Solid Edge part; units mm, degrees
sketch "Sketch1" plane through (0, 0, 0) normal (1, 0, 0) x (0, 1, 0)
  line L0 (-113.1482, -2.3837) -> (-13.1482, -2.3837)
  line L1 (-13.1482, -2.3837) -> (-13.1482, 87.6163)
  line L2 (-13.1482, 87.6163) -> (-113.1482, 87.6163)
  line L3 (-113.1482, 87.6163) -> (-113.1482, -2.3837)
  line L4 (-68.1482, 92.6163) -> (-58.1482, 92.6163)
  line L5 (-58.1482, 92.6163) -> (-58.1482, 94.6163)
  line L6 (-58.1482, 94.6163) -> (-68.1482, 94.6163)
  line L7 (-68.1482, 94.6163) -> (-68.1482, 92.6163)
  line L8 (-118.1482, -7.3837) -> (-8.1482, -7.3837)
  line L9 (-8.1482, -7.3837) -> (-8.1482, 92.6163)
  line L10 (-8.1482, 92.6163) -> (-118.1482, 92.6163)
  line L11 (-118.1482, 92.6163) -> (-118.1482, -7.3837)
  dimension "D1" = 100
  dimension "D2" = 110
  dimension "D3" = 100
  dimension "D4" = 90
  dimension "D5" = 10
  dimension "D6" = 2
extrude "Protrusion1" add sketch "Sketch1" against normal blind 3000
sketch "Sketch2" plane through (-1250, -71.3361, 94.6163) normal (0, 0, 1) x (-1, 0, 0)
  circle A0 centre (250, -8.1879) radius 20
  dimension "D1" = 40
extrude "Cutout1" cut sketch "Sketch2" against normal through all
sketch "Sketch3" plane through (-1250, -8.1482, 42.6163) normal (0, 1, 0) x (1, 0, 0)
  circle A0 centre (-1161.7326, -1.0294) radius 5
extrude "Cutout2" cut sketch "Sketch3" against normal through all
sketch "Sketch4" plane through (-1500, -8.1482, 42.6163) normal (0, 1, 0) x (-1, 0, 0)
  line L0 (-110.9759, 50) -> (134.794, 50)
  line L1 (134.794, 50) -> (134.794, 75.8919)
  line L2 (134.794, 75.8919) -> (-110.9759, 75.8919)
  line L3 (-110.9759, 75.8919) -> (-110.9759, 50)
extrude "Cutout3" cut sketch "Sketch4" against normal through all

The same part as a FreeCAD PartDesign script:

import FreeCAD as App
import Part
import Sketcher
Q = App.Units.Quantity


def add_polygon(sketch, points):
    """Adds a closed chain of lines whose ends are joined by coincident constraints."""
    first, n = sketch.GeometryCount, len(points)
    for a, b in zip(points, points[1:] + points[:1]):
        sketch.addGeometry(Part.LineSegment(App.Vector(*a, 0), App.Vector(*b, 0)), False)
    for i in range(n):
        sketch.addConstraint(Sketcher.Constraint("Coincident", first + i, 2, first + (i + 1) % n, 1))

doc = App.newDocument("Part")
params = doc.addObject("Spreadsheet::Sheet", "Params")
for row, (alias, value) in enumerate([
    ("sketch1_width", "50 mm"),
    ("sketch1_width2", "110 mm"),
    ("sketch1_width3", "100 mm"),
    ("sketch1_height", "2 mm"),
    ("sketch1_height2", "90 mm"),
    ("pad1_length", "3000 mm"),
    ("sketch2_diameter", "40 mm"),
    ("sketch3_diameter", "10 mm"),
    ("sketch4_width", "245.77 mm"),
], start=1):
    params.set(f"A{row}", alias)
    params.set(f"B{row}", "=" + value)
    params.setAlias(f"B{row}", alias)

body = doc.addObject("PartDesign::Body", "Body")

# Sketch on YZ plane
sketch1 = doc.addObject("Sketcher::SketchObject", "Sketch")
body.addObject(sketch1)
sketch1.AttachmentSupport = (doc.YZ_Plane, [""])
sketch1.MapMode = "FlatFace"
add_polygon(sketch1, [(-68.1482, 94.6163), (-68.1482, 92.6163), (-118.1482, 92.6163), (-118.1482, -7.3837), (-8.1482, -7.3837), (-8.1482, 92.6163), (-58.1482, 92.6163), (-58.1482, 94.6163)])  # lines 0-7
add_polygon(sketch1, [(-113.1482, -2.3837), (-113.1482, 87.6163), (-13.1482, 87.6163), (-13.1482, -2.3837)])  # lines 8-11
sketch1.addConstraint([
    Sketcher.Constraint("Vertical", 0),
    Sketcher.Constraint("Horizontal", 1),
    Sketcher.Constraint("Vertical", 2),
    Sketcher.Constraint("Horizontal", 3),
    Sketcher.Constraint("Vertical", 4),
    Sketcher.Constraint("Horizontal", 5),
    Sketcher.Constraint("Vertical", 6),
    Sketcher.Constraint("Horizontal", 7),
    Sketcher.Constraint("Vertical", 8),
    Sketcher.Constraint("Horizontal", 9),
    Sketcher.Constraint("Vertical", 10),
    Sketcher.Constraint("Horizontal", 11),
    Sketcher.Constraint("Horizontal", 1, 2, 4, 2),
    Sketcher.Constraint("Equal", 1, 5),
    Sketcher.Constraint("Equal", 11, 2),
    Sketcher.Constraint("DistanceX", 1, 2, 1, 1, Q("50 mm")),
    Sketcher.Constraint("DistanceX", 3, 1, 3, 2, Q("110 mm")),
    Sketcher.Constraint("DistanceX", 9, 1, 9, 2, Q("100 mm")),
    Sketcher.Constraint("DistanceY", 0, 2, 0, 1, Q("2 mm")),
    Sketcher.Constraint("DistanceY", 8, 1, 8, 2, Q("90 mm")),
    Sketcher.Constraint("DistanceX", 1, 2, 8, 2, Q("5 mm")),
    Sketcher.Constraint("DistanceY", 8, 2, 1, 2, Q("5 mm")),
    Sketcher.Constraint("DistanceX", 0, 2, -1, 1, Q("68.1482 mm")),
    Sketcher.Constraint("DistanceY", -1, 1, 0, 2, Q("92.6163 mm")),
])
sketch1.setExpression("Constraints[27]", "Params.sketch1_width")
sketch1.setExpression("Constraints[28]", "Params.sketch1_width2")
sketch1.setExpression("Constraints[29]", "Params.sketch1_width3")
sketch1.setExpression("Constraints[30]", "Params.sketch1_height")
sketch1.setExpression("Constraints[31]", "Params.sketch1_height2")
pad1 = doc.addObject("PartDesign::Pad", "Pad")
body.addObject(pad1)
pad1.Profile = sketch1
pad1.setExpression("Length", "Params.pad1_length")
pad1.Reversed = True

# Sketch on XY plane
sketch2 = doc.addObject("Sketcher::SketchObject", "Sketch001")
body.addObject(sketch2)
sketch2.AttachmentSupport = (doc.XY_Plane, [""])
sketch2.MapMode = "FlatFace"
sketch2.AttachmentOffset = App.Placement(App.Vector(0, 0, 94.6163), App.Rotation())
sketch2.addGeometry(Part.Circle(App.Vector(-1500, -63.1482, 0), App.Vector(0, 0, 1), 20), False)
sketch2.addConstraint([
    Sketcher.Constraint("Diameter", 0, Q("40 mm")),
    Sketcher.Constraint("DistanceX", 0, 3, -1, 1, Q("1500 mm")),
    Sketcher.Constraint("DistanceY", 0, 3, -1, 1, Q("63.1482 mm")),
])
sketch2.setExpression("Constraints[0]", "Params.sketch2_diameter")
pocket1 = doc.addObject("PartDesign::Pocket", "Pocket")
body.addObject(pocket1)
pocket1.Profile = sketch2
pocket1.Type = "ThroughAll"

# Sketch on XZ plane
sketch3 = doc.addObject("Sketcher::SketchObject", "Sketch002")
body.addObject(sketch3)
sketch3.AttachmentSupport = (doc.XZ_Plane, [""])
sketch3.MapMode = "FlatFace"
sketch3.AttachmentOffset = App.Placement(App.Vector(0, 0, 8.1482), App.Rotation())
sketch3.addGeometry(Part.Circle(App.Vector(-2411.7326, 43.6457, 0), App.Vector(0, 0, 1), 5), False)
sketch3.addConstraint([
    Sketcher.Constraint("Diameter", 0, Q("10 mm")),
    Sketcher.Constraint("DistanceX", 0, 3, -1, 1, Q("2411.7326 mm")),
    Sketcher.Constraint("DistanceY", -1, 1, 0, 3, Q("43.6457 mm")),
])
sketch3.setExpression("Constraints[0]", "Params.sketch3_diameter")
pocket2 = doc.addObject("PartDesign::Pocket", "Pocket001")
body.addObject(pocket2)
pocket2.Profile = sketch3
pocket2.Type = "ThroughAll"
pocket2.Reversed = True

# Sketch on XZ plane
sketch4 = doc.addObject("Sketcher::SketchObject", "Sketch003")
body.addObject(sketch4)
sketch4.AttachmentSupport = (doc.XZ_Plane, [""])
sketch4.MapMode = "FlatFace"
sketch4.AttachmentOffset = App.Placement(App.Vector(0, 0, 8.1482), App.Rotation())
add_polygon(sketch4, [(-1389.0241, 118.5082), (-1389.0241, 92.6163), (-1634.794, 92.6163), (-1634.794, 118.5082)])  # lines 0-3
sketch4.addConstraint([
    Sketcher.Constraint("Vertical", 0),
    Sketcher.Constraint("Horizontal", 1),
    Sketcher.Constraint("Vertical", 2),
    Sketcher.Constraint("Horizontal", 3),
    Sketcher.Constraint("DistanceX", 1, 2, 1, 1, Q("245.77 mm")),
    Sketcher.Constraint("DistanceY", 0, 2, 0, 1, Q("25.892 mm")),
    Sketcher.Constraint("DistanceX", 0, 2, -1, 1, Q("1389.024 mm")),
    Sketcher.Constraint("DistanceY", -1, 1, 0, 2, Q("92.6163 mm")),
])
sketch4.setExpression("Constraints[8]", "Params.sketch4_width")
pocket3 = doc.addObject("PartDesign::Pocket", "Pocket002")
body.addObject(pocket3)
pocket3.Profile = sketch4
pocket3.Type = "ThroughAll"
pocket3.Reversed = True

doc.recompute()
